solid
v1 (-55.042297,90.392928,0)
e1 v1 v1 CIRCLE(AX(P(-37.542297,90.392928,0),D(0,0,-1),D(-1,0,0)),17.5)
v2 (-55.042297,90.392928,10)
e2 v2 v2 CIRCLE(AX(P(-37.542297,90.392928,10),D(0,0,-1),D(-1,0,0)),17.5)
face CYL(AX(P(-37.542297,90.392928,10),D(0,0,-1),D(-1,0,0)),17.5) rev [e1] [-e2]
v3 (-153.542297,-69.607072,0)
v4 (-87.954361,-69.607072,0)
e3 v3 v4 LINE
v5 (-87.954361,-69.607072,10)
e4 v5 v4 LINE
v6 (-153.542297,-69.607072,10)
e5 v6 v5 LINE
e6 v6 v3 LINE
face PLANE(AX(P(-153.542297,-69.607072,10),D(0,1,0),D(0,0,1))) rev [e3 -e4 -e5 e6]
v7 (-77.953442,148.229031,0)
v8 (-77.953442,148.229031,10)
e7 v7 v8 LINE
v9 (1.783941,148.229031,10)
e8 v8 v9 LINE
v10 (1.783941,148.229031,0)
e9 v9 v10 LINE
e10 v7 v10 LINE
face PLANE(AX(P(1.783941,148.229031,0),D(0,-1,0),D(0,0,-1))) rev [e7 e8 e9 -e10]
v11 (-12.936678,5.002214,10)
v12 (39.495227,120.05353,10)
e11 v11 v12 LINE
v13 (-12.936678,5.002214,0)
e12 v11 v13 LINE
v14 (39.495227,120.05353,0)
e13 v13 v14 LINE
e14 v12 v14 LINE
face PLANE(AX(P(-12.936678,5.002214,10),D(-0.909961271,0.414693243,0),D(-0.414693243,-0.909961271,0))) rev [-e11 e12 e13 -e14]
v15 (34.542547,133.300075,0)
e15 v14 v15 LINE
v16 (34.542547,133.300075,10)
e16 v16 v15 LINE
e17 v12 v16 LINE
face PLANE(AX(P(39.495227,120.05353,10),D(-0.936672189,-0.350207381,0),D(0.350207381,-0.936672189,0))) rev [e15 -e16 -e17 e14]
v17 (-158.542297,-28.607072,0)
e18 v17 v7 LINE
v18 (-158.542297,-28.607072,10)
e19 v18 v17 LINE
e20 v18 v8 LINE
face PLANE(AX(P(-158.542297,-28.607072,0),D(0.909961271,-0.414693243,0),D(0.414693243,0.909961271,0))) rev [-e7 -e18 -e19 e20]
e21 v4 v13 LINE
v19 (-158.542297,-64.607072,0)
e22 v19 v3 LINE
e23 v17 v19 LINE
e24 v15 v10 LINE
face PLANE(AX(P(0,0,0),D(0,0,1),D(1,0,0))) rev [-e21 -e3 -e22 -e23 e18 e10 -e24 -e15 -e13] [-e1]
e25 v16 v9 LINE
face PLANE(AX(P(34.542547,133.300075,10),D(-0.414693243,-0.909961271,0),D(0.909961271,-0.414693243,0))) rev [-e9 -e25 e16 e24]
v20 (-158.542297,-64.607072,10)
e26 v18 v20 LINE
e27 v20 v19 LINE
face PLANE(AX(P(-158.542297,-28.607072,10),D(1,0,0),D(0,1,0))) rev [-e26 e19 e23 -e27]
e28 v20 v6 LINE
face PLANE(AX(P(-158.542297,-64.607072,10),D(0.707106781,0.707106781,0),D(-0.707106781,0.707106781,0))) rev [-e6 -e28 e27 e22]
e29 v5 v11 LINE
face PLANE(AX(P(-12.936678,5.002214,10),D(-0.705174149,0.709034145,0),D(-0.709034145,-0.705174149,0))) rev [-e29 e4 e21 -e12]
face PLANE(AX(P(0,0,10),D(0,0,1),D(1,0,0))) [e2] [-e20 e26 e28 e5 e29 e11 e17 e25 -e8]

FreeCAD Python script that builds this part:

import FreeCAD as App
import Part
import Sketcher

V = App.Vector
Q = App.Units.Quantity

doc = App.newDocument("Part")
body = doc.addObject("PartDesign::Body", "Body")

# Sketch on XY plane
sketch1 = body.newObject("Sketcher::SketchObject", "Sketch")
sketch1.AttachmentSupport = (doc.getObject("XY_Plane"), [""])
sketch1.MapMode = "FlatFace"
sketch1.addGeometry(Part.LineSegment(V(-162.5, -28.6, 0), V(-158.5, -28.6, 0)), False)
sketch1.addGeometry(Part.LineSegment(V(-158.5, -28.6, 0), V(-158.5, -64.6, 0)), False)
sketch1.addGeometry(Part.LineSegment(V(-158.5, -64.6, 0), V(-153.5, -69.6, 0)), False)
sketch1.addGeometry(Part.LineSegment(V(-153.5, -69.6, 0), V(-88, -69.6, 0)), False)
sketch1.addGeometry(Part.LineSegment(V(-88, -69.6, 0), V(-12.9, 5, 0)), False)
sketch1.addGeometry(Part.LineSegment(V(-12.9, 5, 0), V(39.5, 120.1, 0)), False)
sketch1.addGeometry(Part.LineSegment(V(39.5, 120.1, 0), V(34.5, 133.3, 0)), False)
sketch1.addGeometry(Part.LineSegment(V(34.5, 133.3, 0), V(1.8, 148.2, 0)), False)
sketch1.addGeometry(Part.LineSegment(V(1.8, 148.2, 0), V(3.4, 151.9, 0)), False)
sketch1.addGeometry(Part.LineSegment(V(3.4, 151.9, 0), V(-80.3, 151.9, 0)), False)
sketch1.addGeometry(Part.LineSegment(V(-80.3, 151.9, 0), V(-162.5, -28.6, 0)), False)
sketch1.addConstraint(Sketcher.Constraint("Coincident", 0, 2, 1, 1))
sketch1.addConstraint(Sketcher.Constraint("Coincident", 1, 2, 2, 1))
sketch1.addConstraint(Sketcher.Constraint("Coincident", 2, 2, 3, 1))
sketch1.addConstraint(Sketcher.Constraint("Coincident", 3, 2, 4, 1))
sketch1.addConstraint(Sketcher.Constraint("Coincident", 4, 2, 5, 1))
sketch1.addConstraint(Sketcher.Constraint("Coincident", 5, 2, 6, 1))
sketch1.addConstraint(Sketcher.Constraint("Coincident", 6, 2, 7, 1))
sketch1.addConstraint(Sketcher.Constraint("Coincident", 7, 2, 8, 1))
sketch1.addConstraint(Sketcher.Constraint("Coincident", 8, 2, 9, 1))
sketch1.addConstraint(Sketcher.Constraint("Coincident", 9, 2, 10, 1))
sketch1.addConstraint(Sketcher.Constraint("Coincident", 10, 2, 0, 1))
sketch1.addConstraint(Sketcher.Constraint("Horizontal", 0))
sketch1.addConstraint(Sketcher.Constraint("Vertical", 1))
sketch1.addConstraint(Sketcher.Constraint("Horizontal", 3))
sketch1.addConstraint(Sketcher.Constraint("Horizontal", 9))
sketch1.addConstraint(Sketcher.Constraint("Perpendicular", 5, 7))
sketch1.addConstraint(Sketcher.Constraint("Perpendicular", 7, 8))
sketch1.addConstraint(Sketcher.Constraint("Parallel", 8, 10))
sketch1.addConstraint(Sketcher.Constraint("DistanceX", 0, 1, 0, 2, Q("4 mm")))
sketch1.addConstraint(Sketcher.Constraint("DistanceY", 1, 2, 1, 1, Q("36 mm")))
sketch1.addConstraint(Sketcher.Constraint("Angle", 2, Q("-45 deg")))
sketch1.addConstraint(Sketcher.Constraint("Distance", 7, Q("36 mm")))
sketch1.addConstraint(Sketcher.Constraint("Distance", 8, Q("4 mm")))
sketch1.addConstraint(Sketcher.Constraint("Angle", 5, Q("65.5 deg")))
sketch1.addConstraint(Sketcher.Constraint("Angle", 6, Q("110.5 deg")))
sketch1.addConstraint(Sketcher.Constraint("DistanceX", 1, 2, 2, 2, Q("5 mm")))
sketch1.addConstraint(Sketcher.Constraint("Distance", 5, Q("126.435398 mm")))
sketch1.addConstraint(Sketcher.Constraint("DistanceY", 3, 2, 5, 2, Q("189.660601 mm")))
sketch1.addConstraint(Sketcher.Constraint("DistanceY", 5, 2, 7, 2, Q("28.175502 mm")))
sketch1.addConstraint(Sketcher.Constraint("Distance", 4, Q("105.802639 mm")))
sketch1.addConstraint(Sketcher.Constraint("DistanceX", 3, 1, 3, 2, Q("65.587935 mm")))
sketch1.addConstraint(Sketcher.Constraint("DistanceY", 0, 2, -1, 1, Q("28.607072 mm")))
sketch1.addConstraint(Sketcher.Constraint("DistanceX", 3, 2, -1, 1, Q("87.954361 mm")))
pad1 = body.newObject("PartDesign::Pad", "Pad")
pad1.Profile = sketch1
pad1.Length = 10

# Sketch on XY plane
sketch2 = body.newObject("Sketcher::SketchObject", "Sketch001")
sketch2.AttachmentSupport = (doc.getObject("XY_Plane"), [""])
sketch2.MapMode = "FlatFace"
sketch2.AttachmentOffset = App.Placement(V(0, 0, 10), App.Rotation())
sketch2.addGeometry(Part.LineSegment(V(-78, 148, 0), V(2, 148, 0)), False)
sketch2.addGeometry(Part.LineSegment(V(2, 148, 0), V(19, 158, 0)), False)
sketch2.addGeometry(Part.LineSegment(V(19, 158, 0), V(-118, 215, 0)), False)
sketch2.addGeometry(Part.LineSegment(V(-118, 215, 0), V(-259, -57, 0)), False)
sketch2.addGeometry(Part.LineSegment(V(-259, -57, 0), V(-178, -46, 0)), False)
sketch2.addGeometry(Part.LineSegment(V(-178, -46, 0), V(-159, -29, 0)), False)
sketch2.addGeometry(Part.LineSegment(V(-159, -29, 0), V(-78, 148, 0)), False)
sketch2.addConstraint(Sketcher.Constraint("Coincident", 0, 2, 1, 1))
sketch2.addConstraint(Sketcher.Constraint("Coincident", 1, 2, 2, 1))
sketch2.addConstraint(Sketcher.Constraint("Coincident", 2, 2, 3, 1))
sketch2.addConstraint(Sketcher.Constraint("Coincident", 3, 2, 4, 1))
sketch2.addConstraint(Sketcher.Constraint("Coincident", 4, 2, 5, 1))
sketch2.addConstraint(Sketcher.Constraint("Coincident", 5, 2, 6, 1))
sketch2.addConstraint(Sketcher.Constraint("Coincident", 6, 2, 0, 1))
sketch2.addConstraint(Sketcher.Constraint("Horizontal", 0))
sketch2.addConstraint(Sketcher.Constraint("Angle", 6, Q("65.5 deg")))
sketch2.addConstraint(Sketcher.Constraint("DistanceX", 2, 2, 1, 2, Q("137.605702 mm")))
sketch2.addConstraint(Sketcher.Constraint("DistanceX", 3, 2, 0, 2, Q("260.548801 mm")))
sketch2.addConstraint(Sketcher.Constraint("Distance", 4, Q("81.833989 mm")))
sketch2.addConstraint(Sketcher.Constraint("Distance", 6, Q("194.333659 mm")))
sketch2.addConstraint(Sketcher.Constraint("DistanceX", 0, 1, 0, 2, Q("79.737383 mm")))
sketch2.addConstraint(Sketcher.Constraint("DistanceX", -1, 1, 0, 2, Q("1.783941 mm")))
sketch2.addConstraint(Sketcher.Constraint("DistanceY", -1, 1, 0, 2, Q("148.229031 mm")))
sketch2.addConstraint(Sketcher.Constraint("DistanceX", 2, 2, -1, 1, Q("118.247869 mm")))
sketch2.addConstraint(Sketcher.Constraint("DistanceX", 4, 2, -1, 1, Q("177.628262 mm")))
sketch2.addConstraint(Sketcher.Constraint("DistanceY", 4, 2, -1, 1, Q("46.123219 mm")))
sketch2.addConstraint(Sketcher.Constraint("DistanceY", 0, 2, 2, 2, Q("67.122792 mm")))
sketch2.addConstraint(Sketcher.Constraint("DistanceY", 3, 2, 1, 2, Q("214.389769 mm")))
pocket1 = body.newObject("PartDesign::Pocket", "Pocket")
pocket1.Profile = sketch2
pocket1.Length = 10

# Sketch on XY plane
sketch3 = body.newObject("Sketcher::SketchObject", "Sketch002")
sketch3.AttachmentSupport = (doc.getObject("XY_Plane"), [""])
sketch3.MapMode = "FlatFace"
sketch3.addGeometry(Part.Circle(V(-38, 90, 0), V(0, 0, 1), 18), False)
sketch3.addConstraint(Sketcher.Constraint("Diameter", 0, Q("35 mm")))
sketch3.addConstraint(Sketcher.Constraint("DistanceY", -1, 1, 0, 3, Q("90.392928 mm")))
sketch3.addConstraint(Sketcher.Constraint("DistanceX", 0, 3, -1, 1, Q("37.542297 mm")))
pocket2 = body.newObject("PartDesign::Pocket", "Pocket001")
pocket2.Profile = sketch3
pocket2.Length = 10
pocket2.Reversed = True

doc.recompute()
